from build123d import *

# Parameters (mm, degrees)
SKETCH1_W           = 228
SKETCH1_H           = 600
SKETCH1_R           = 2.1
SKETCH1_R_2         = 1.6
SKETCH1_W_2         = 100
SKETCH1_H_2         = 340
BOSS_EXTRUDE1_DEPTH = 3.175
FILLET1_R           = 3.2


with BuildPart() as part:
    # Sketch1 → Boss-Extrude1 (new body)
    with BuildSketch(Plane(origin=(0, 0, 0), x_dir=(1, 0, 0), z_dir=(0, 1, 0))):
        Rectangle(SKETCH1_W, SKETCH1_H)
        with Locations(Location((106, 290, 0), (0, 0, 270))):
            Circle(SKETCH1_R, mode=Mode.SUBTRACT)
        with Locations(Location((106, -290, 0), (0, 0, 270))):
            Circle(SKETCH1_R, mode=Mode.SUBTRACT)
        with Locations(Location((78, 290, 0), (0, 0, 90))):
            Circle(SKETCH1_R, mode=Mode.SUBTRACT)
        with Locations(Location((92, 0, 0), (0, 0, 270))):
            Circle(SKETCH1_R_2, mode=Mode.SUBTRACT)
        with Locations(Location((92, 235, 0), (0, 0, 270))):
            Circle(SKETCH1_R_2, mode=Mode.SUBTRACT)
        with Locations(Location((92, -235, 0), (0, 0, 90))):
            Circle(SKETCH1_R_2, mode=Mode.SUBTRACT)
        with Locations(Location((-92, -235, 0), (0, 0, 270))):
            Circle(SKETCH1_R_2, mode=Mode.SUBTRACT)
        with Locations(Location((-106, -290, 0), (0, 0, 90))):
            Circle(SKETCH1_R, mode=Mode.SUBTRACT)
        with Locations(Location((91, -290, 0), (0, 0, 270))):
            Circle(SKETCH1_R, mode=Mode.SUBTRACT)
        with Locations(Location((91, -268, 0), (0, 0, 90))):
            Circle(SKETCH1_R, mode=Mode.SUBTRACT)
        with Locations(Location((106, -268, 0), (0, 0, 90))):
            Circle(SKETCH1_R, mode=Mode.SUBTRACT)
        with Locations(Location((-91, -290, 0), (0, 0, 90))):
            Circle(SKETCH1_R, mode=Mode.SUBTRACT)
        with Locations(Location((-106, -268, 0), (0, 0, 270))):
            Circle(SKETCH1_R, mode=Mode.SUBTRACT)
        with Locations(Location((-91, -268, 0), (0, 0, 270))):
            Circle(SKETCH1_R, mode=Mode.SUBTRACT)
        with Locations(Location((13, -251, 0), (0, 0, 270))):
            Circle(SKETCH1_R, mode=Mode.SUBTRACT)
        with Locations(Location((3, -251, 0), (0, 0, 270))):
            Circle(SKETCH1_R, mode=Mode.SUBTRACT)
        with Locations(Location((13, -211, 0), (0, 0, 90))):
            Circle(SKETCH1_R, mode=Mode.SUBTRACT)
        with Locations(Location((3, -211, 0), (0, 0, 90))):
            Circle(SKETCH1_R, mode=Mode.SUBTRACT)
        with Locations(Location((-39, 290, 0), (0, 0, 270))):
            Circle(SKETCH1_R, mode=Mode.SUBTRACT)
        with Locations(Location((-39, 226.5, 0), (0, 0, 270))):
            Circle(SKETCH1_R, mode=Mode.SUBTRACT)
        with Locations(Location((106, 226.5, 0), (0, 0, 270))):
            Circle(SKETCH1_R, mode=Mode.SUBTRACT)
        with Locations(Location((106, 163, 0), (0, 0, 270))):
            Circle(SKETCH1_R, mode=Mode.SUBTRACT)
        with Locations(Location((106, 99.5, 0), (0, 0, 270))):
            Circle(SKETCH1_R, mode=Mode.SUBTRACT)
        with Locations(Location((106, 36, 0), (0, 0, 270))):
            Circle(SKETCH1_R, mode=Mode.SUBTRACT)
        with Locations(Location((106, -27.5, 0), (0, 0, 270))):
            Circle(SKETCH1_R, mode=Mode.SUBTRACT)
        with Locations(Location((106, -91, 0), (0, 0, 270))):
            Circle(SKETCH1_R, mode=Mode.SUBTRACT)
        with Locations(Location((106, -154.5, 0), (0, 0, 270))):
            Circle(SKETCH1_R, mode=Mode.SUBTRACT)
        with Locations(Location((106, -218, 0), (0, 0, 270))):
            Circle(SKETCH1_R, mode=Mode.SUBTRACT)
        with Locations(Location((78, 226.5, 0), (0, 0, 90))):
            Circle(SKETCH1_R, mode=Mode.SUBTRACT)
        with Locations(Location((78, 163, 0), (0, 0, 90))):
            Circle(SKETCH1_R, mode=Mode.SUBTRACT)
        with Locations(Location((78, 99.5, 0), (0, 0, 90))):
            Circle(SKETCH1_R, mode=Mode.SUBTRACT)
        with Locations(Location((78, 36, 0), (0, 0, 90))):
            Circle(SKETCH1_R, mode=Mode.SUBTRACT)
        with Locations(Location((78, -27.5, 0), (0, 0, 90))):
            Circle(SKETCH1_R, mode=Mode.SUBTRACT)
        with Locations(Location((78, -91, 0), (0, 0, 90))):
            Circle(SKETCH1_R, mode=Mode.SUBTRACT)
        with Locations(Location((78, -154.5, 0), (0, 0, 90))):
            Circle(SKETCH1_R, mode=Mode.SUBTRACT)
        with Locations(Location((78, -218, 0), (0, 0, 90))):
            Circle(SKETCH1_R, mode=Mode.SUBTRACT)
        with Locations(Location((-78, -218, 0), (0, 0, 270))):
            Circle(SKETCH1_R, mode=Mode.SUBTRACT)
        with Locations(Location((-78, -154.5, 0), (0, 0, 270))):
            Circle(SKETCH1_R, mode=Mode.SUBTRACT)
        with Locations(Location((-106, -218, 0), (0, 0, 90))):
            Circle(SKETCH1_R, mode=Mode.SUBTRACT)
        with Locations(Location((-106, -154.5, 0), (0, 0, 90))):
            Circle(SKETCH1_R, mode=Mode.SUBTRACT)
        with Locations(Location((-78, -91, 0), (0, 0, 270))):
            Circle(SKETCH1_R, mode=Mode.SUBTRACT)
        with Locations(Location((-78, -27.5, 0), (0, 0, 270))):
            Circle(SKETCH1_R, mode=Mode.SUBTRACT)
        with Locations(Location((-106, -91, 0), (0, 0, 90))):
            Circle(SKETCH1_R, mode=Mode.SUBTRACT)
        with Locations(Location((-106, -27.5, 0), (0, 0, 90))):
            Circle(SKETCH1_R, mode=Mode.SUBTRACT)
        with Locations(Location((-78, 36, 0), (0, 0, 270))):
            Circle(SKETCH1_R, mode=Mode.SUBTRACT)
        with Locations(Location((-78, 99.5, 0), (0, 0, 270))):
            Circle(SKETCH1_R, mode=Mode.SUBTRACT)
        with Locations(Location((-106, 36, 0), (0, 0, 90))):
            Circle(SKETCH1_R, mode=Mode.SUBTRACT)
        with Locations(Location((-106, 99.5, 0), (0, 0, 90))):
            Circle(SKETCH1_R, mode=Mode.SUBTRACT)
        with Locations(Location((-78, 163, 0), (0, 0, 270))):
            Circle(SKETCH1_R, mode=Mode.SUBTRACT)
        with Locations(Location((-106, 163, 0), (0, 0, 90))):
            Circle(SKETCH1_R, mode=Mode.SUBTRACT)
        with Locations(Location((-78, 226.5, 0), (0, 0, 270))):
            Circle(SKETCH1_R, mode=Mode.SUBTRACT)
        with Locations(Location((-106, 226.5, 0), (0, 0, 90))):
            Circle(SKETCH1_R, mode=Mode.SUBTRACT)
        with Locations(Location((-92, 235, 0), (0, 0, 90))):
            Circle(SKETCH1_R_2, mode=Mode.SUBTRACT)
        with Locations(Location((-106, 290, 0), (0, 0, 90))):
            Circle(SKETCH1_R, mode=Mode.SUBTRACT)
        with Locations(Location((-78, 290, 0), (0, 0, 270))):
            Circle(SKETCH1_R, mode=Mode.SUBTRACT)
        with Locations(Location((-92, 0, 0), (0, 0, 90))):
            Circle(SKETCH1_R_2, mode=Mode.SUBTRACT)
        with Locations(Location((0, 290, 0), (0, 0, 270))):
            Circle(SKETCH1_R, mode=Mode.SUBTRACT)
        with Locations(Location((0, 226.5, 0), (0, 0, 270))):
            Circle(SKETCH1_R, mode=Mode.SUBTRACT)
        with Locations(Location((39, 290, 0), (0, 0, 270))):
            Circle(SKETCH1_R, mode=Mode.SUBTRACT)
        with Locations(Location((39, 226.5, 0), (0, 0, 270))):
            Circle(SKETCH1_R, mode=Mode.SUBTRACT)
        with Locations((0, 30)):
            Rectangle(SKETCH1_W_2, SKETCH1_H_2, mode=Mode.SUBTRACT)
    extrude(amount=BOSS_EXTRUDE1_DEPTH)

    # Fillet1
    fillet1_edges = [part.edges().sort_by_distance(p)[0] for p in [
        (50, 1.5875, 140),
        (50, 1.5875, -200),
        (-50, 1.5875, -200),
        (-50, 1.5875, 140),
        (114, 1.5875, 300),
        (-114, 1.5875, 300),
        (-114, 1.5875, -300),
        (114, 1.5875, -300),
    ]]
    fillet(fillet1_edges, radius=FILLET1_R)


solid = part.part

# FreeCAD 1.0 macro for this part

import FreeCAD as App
import Part
import Sketcher

V = App.Vector


def edges_at(feature, points):
    """Names of the edges that pass closest to the given points."""
    edges = feature.Shape.Edges
    near = lambda p: min(range(len(edges)), key=lambda i: edges[i].distToShape(Part.Vertex(*p))[0])
    return sorted({f"Edge{near(p) + 1}" for p in points})

doc = App.newDocument("Part")
params = doc.addObject("Spreadsheet::Sheet", "Params")
for row, (alias, value) in enumerate([
    ("sketch1_diameter", "4.2 mm"),
    ("sketch1_diameter2", "3.2 mm"),
    ("sketch1_width", "228 mm"),
    ("sketch1_width2", "100 mm"),
    ("sketch1_height", "600 mm"),
    ("pad1_length", "3.175 mm"),
    ("fillet_radius", "3.2 mm"),
], start=1):
    params.set(f"A{row}", alias)
    params.set(f"B{row}", "=" + value)
    params.setAlias(f"B{row}", alias)

body = doc.addObject("PartDesign::Body", "Body")

# Sketch on XZ plane
sketch1 = doc.addObject("Sketcher::SketchObject", "Sketch")
body.addObject(sketch1)
sketch1.AttachmentSupport = (doc.XZ_Plane, [""])
sketch1.MapMode = "FlatFace"
sketch1.addGeometry(Part.LineSegment(V(-114, -300, 0), V(-114, 300, 0)), False)
sketch1.addGeometry(Part.LineSegment(V(-114, 300, 0), V(114, 300, 0)), False)
sketch1.addGeometry(Part.LineSegment(V(114, 300, 0), V(114, -300, 0)), False)
sketch1.addGeometry(Part.LineSegment(V(114, -300, 0), V(-114, -300, 0)), False)
sketch1.addGeometry(Part.Circle(V(-106, 290, 0), V(0, 0, 1), 2.1), False)
sketch1.addGeometry(Part.Circle(V(-106, 268, 0), V(0, 0, 1), 2.1), False)
sketch1.addGeometry(Part.Circle(V(-91, 290, 0), V(0, 0, 1), 2.1), False)
sketch1.addGeometry(Part.Circle(V(-91, 268, 0), V(0, 0, 1), 2.1), False)
sketch1.addGeometry(Part.Circle(V(-92, 235, 0), V(0, 0, 1), 1.6), False)
sketch1.addGeometry(Part.Circle(V(-106, 218, 0), V(0, 0, 1), 2.1), False)
sketch1.addGeometry(Part.Circle(V(-106, 154.5, 0), V(0, 0, 1), 2.1), False)
sketch1.addGeometry(Part.Circle(V(-78, 218, 0), V(0, 0, 1), 2.1), False)
sketch1.addGeometry(Part.Circle(V(-78, 154.5, 0), V(0, 0, 1), 2.1), False)
sketch1.addGeometry(Part.Circle(V(-106, 91, 0), V(0, 0, 1), 2.1), False)
sketch1.addGeometry(Part.Circle(V(-78, 91, 0), V(0, 0, 1), 2.1), False)
sketch1.addGeometry(Part.Circle(V(-106, 27.5, 0), V(0, 0, 1), 2.1), False)
sketch1.addGeometry(Part.Circle(V(-78, 27.5, 0), V(0, 0, 1), 2.1), False)
sketch1.addGeometry(Part.Circle(V(3, 251, 0), V(0, 0, 1), 2.1), False)
sketch1.addGeometry(Part.Circle(V(13, 251, 0), V(0, 0, 1), 2.1), False)
sketch1.addGeometry(Part.Circle(V(3, 211, 0), V(0, 0, 1), 2.1), False)
sketch1.addGeometry(Part.Circle(V(13, 211, 0), V(0, 0, 1), 2.1), False)
sketch1.addGeometry(Part.Circle(V(91, 290, 0), V(0, 0, 1), 2.1), False)
sketch1.addGeometry(Part.Circle(V(91, 268, 0), V(0, 0, 1), 2.1), False)
sketch1.addGeometry(Part.Circle(V(106, 290, 0), V(0, 0, 1), 2.1), False)
sketch1.addGeometry(Part.Circle(V(106, 268, 0), V(0, 0, 1), 2.1), False)
sketch1.addGeometry(Part.Circle(V(92, 235, 0), V(0, 0, 1), 1.6), False)
sketch1.addGeometry(Part.Circle(V(78, 218, 0), V(0, 0, 1), 2.1), False)
sketch1.addGeometry(Part.Circle(V(78, 154.5, 0), V(0, 0, 1), 2.1), False)
sketch1.addGeometry(Part.Circle(V(106, 218, 0), V(0, 0, 1), 2.1), False)
sketch1.addGeometry(Part.Circle(V(106, 154.5, 0), V(0, 0, 1), 2.1), False)
sketch1.addGeometry(Part.Circle(V(78, 91, 0), V(0, 0, 1), 2.1), False)
sketch1.addGeometry(Part.Circle(V(106, 91, 0), V(0, 0, 1), 2.1), False)
sketch1.addGeometry(Part.Circle(V(78, 27.5, 0), V(0, 0, 1), 2.1), False)
sketch1.addGeometry(Part.Circle(V(106, 27.5, 0), V(0, 0, 1), 2.1), False)
sketch1.addGeometry(Part.Circle(V(-106, -36, 0), V(0, 0, 1), 2.1), False)
sketch1.addGeometry(Part.Circle(V(-92, 0, 0), V(0, 0, 1), 1.6), False)
sketch1.addGeometry(Part.Circle(V(-78, -36, 0), V(0, 0, 1), 2.1), False)
sketch1.addGeometry(Part.Circle(V(-106, -99.5, 0), V(0, 0, 1), 2.1), False)
sketch1.addGeometry(Part.Circle(V(-78, -99.5, 0), V(0, 0, 1), 2.1), False)
sketch1.addGeometry(Part.Circle(V(-106, -163, 0), V(0, 0, 1), 2.1), False)
sketch1.addGeometry(Part.Circle(V(-78, -163, 0), V(0, 0, 1), 2.1), False)
sketch1.addGeometry(Part.Circle(V(-106, -226.5, 0), V(0, 0, 1), 2.1), False)
sketch1.addGeometry(Part.Circle(V(-92, -235, 0), V(0, 0, 1), 1.6), False)
sketch1.addGeometry(Part.Circle(V(-106, -290, 0), V(0, 0, 1), 2.1), False)
sketch1.addGeometry(Part.Circle(V(-78, -226.5, 0), V(0, 0, 1), 2.1), False)
sketch1.addGeometry(Part.Circle(V(-78, -290, 0), V(0, 0, 1), 2.1), False)
sketch1.addGeometry(Part.Circle(V(-39, -226.5, 0), V(0, 0, 1), 2.1), False)
sketch1.addGeometry(Part.Circle(V(-39, -290, 0), V(0, 0, 1), 2.1), False)
sketch1.addGeometry(Part.LineSegment(V(50, 140, 0), V(-50, 140, 0)), False)
sketch1.addGeometry(Part.LineSegment(V(-50, 140, 0), V(-50, -200, 0)), False)
sketch1.addGeometry(Part.LineSegment(V(-50, -200, 0), V(50, -200, 0)), False)
sketch1.addGeometry(Part.LineSegment(V(50, -200, 0), V(50, 140, 0)), False)
sketch1.addGeometry(Part.Circle(V(78, -36, 0), V(0, 0, 1), 2.1), False)
sketch1.addGeometry(Part.Circle(V(92, 0, 0), V(0, 0, 1), 1.6), False)
sketch1.addGeometry(Part.Circle(V(106, -36, 0), V(0, 0, 1), 2.1), False)
sketch1.addGeometry(Part.Circle(V(78, -99.5, 0), V(0, 0, 1), 2.1), False)
sketch1.addGeometry(Part.Circle(V(106, -99.5, 0), V(0, 0, 1), 2.1), False)
sketch1.addGeometry(Part.Circle(V(0, -226.5, 0), V(0, 0, 1), 2.1), False)
sketch1.addGeometry(Part.Circle(V(0, -290, 0), V(0, 0, 1), 2.1), False)
sketch1.addGeometry(Part.Circle(V(39, -226.5, 0), V(0, 0, 1), 2.1), False)
sketch1.addGeometry(Part.Circle(V(39, -290, 0), V(0, 0, 1), 2.1), False)
sketch1.addGeometry(Part.Circle(V(78, -163, 0), V(0, 0, 1), 2.1), False)
sketch1.addGeometry(Part.Circle(V(106, -163, 0), V(0, 0, 1), 2.1), False)
sketch1.addGeometry(Part.Circle(V(78, -226.5, 0), V(0, 0, 1), 2.1), False)
sketch1.addGeometry(Part.Circle(V(78, -290, 0), V(0, 0, 1), 2.1), False)
sketch1.addGeometry(Part.Circle(V(92, -235, 0), V(0, 0, 1), 1.6), False)
sketch1.addGeometry(Part.Circle(V(106, -226.5, 0), V(0, 0, 1), 2.1), False)
sketch1.addGeometry(Part.Circle(V(106, -290, 0), V(0, 0, 1), 2.1), False)
sketch1.addConstraint(Sketcher.Constraint("Coincident", 0, 2, 1, 1))
sketch1.addConstraint(Sketcher.Constraint("Coincident", 1, 2, 2, 1))
sketch1.addConstraint(Sketcher.Constraint("Coincident", 2, 2, 3, 1))
sketch1.addConstraint(Sketcher.Constraint("Coincident", 3, 2, 0, 1))
sketch1.addConstraint(Sketcher.Constraint("Coincident", 48, 2, 49, 1))
sketch1.addConstraint(Sketcher.Constraint("Coincident", 49, 2, 50, 1))
sketch1.addConstraint(Sketcher.Constraint("Coincident", 50, 2, 51, 1))
sketch1.addConstraint(Sketcher.Constraint("Coincident", 51, 2, 48, 1))
sketch1.addConstraint(Sketcher.Constraint("Vertical", 0))
sketch1.addConstraint(Sketcher.Constraint("Horizontal", 1))
sketch1.addConstraint(Sketcher.Constraint("Vertical", 2))
sketch1.addConstraint(Sketcher.Constraint("Horizontal", 3))
sketch1.addConstraint(Sketcher.Constraint("Horizontal", 48))
sketch1.addConstraint(Sketcher.Constraint("Vertical", 49))
sketch1.addConstraint(Sketcher.Constraint("Horizontal", 50))
sketch1.addConstraint(Sketcher.Constraint("Vertical", 51))
sketch1.addConstraint(Sketcher.Constraint("Equal", 4, 5))
sketch1.addConstraint(Sketcher.Constraint("Equal", 5, 6))
sketch1.addConstraint(Sketcher.Constraint("Equal", 6, 7))
sketch1.addConstraint(Sketcher.Constraint("Equal", 7, 9))
sketch1.addConstraint(Sketcher.Constraint("Equal", 9, 10))
sketch1.addConstraint(Sketcher.Constraint("Equal", 10, 11))
sketch1.addConstraint(Sketcher.Constraint("Equal", 11, 12))
sketch1.addConstraint(Sketcher.Constraint("Equal", 12, 13))
sketch1.addConstraint(Sketcher.Constraint("Equal", 13, 14))
sketch1.addConstraint(Sketcher.Constraint("Equal", 14, 15))
sketch1.addConstraint(Sketcher.Constraint("Equal", 15, 16))
sketch1.addConstraint(Sketcher.Constraint("Equal", 16, 17))
sketch1.addConstraint(Sketcher.Constraint("Equal", 17, 18))
sketch1.addConstraint(Sketcher.Constraint("Equal", 18, 19))
sketch1.addConstraint(Sketcher.Constraint("Equal", 19, 20))
sketch1.addConstraint(Sketcher.Constraint("Equal", 20, 21))
sketch1.addConstraint(Sketcher.Constraint("Equal", 21, 22))
sketch1.addConstraint(Sketcher.Constraint("Equal", 22, 23))
sketch1.addConstraint(Sketcher.Constraint("Equal", 23, 24))
sketch1.addConstraint(Sketcher.Constraint("Equal", 8, 25))
sketch1.addConstraint(Sketcher.Constraint("Equal", 24, 26))
sketch1.addConstraint(Sketcher.Constraint("Equal", 26, 27))
sketch1.addConstraint(Sketcher.Constraint("Equal", 27, 28))
sketch1.addConstraint(Sketcher.Constraint("Equal", 28, 29))
sketch1.addConstraint(Sketcher.Constraint("Equal", 29, 30))
sketch1.addConstraint(Sketcher.Constraint("Equal", 30, 31))
sketch1.addConstraint(Sketcher.Constraint("Equal", 31, 32))
sketch1.addConstraint(Sketcher.Constraint("Equal", 32, 33))
sketch1.addConstraint(Sketcher.Constraint("Equal", 33, 34))
sketch1.addConstraint(Sketcher.Constraint("Equal", 25, 35))
sketch1.addConstraint(Sketcher.Constraint("Equal", 34, 36))
sketch1.addConstraint(Sketcher.Constraint("Equal", 36, 37))
sketch1.addConstraint(Sketcher.Constraint("Equal", 37, 38))
sketch1.addConstraint(Sketcher.Constraint("Equal", 38, 39))
sketch1.addConstraint(Sketcher.Constraint("Equal", 39, 40))
sketch1.addConstraint(Sketcher.Constraint("Equal", 40, 41))
sketch1.addConstraint(Sketcher.Constraint("Equal", 35, 42))
sketch1.addConstraint(Sketcher.Constraint("Equal", 41, 43))
sketch1.addConstraint(Sketcher.Constraint("Equal", 43, 44))
sketch1.addConstraint(Sketcher.Constraint("Equal", 44, 45))
sketch1.addConstraint(Sketcher.Constraint("Equal", 45, 46))
sketch1.addConstraint(Sketcher.Constraint("Equal", 46, 47))
sketch1.addConstraint(Sketcher.Constraint("Equal", 47, 52))
sketch1.addConstraint(Sketcher.Constraint("Equal", 42, 53))
sketch1.addConstraint(Sketcher.Constraint("Equal", 52, 54))
sketch1.addConstraint(Sketcher.Constraint("Equal", 54, 55))
sketch1.addConstraint(Sketcher.Constraint("Equal", 55, 56))
sketch1.addConstraint(Sketcher.Constraint("Equal", 56, 57))
sketch1.addConstraint(Sketcher.Constraint("Equal", 57, 58))
sketch1.addConstraint(Sketcher.Constraint("Equal", 58, 59))
sketch1.addConstraint(Sketcher.Constraint("Equal", 59, 60))
sketch1.addConstraint(Sketcher.Constraint("Equal", 60, 61))
sketch1.addConstraint(Sketcher.Constraint("Equal", 61, 62))
sketch1.addConstraint(Sketcher.Constraint("Equal", 62, 63))
sketch1.addConstraint(Sketcher.Constraint("Equal", 63, 64))
sketch1.addConstraint(Sketcher.Constraint("Equal", 53, 65))
sketch1.addConstraint(Sketcher.Constraint("Equal", 64, 66))
sketch1.addConstraint(Sketcher.Constraint("Equal", 66, 67))
sketch1.addConstraint(Sketcher.Constraint("Symmetric", 25, 3, 42, 3, -1, 1))
sketch1.addConstraint(Sketcher.Constraint("Symmetric", 23, 3, 43, 3, -1, 1))
sketch1.addConstraint(Sketcher.Constraint("Symmetric", 35, 3, 53, 3, -1, 1))
sketch1.addConstraint(Sketcher.Constraint("Symmetric", 8, 3, 65, 3, -1, 1))
sketch1.addConstraint(Sketcher.Constraint("Symmetric", 4, 3, 67, 3, -1, 1))
sketch1.addConstraint(Sketcher.Constraint("Symmetric", 0, 2, 2, 2, -1, 1))
sketch1.addConstraint(Sketcher.Constraint("Symmetric", 6, 3, 21, 3, -2))
sketch1.addConstraint(Sketcher.Constraint("Symmetric", 7, 3, 22, 3, -2))
sketch1.addConstraint(Sketcher.Constraint("Symmetric", 4, 3, 23, 3, -2))
sketch1.addConstraint(Sketcher.Constraint("Symmetric", 5, 3, 24, 3, -2))
sketch1.addConstraint(Sketcher.Constraint("Symmetric", 8, 3, 25, 3, -2))
sketch1.addConstraint(Sketcher.Constraint("Symmetric", 11, 3, 26, 3, -2))
sketch1.addConstraint(Sketcher.Constraint("Symmetric", 12, 3, 27, 3, -2))
sketch1.addConstraint(Sketcher.Constraint("Symmetric", 9, 3, 28, 3, -2))
sketch1.addConstraint(Sketcher.Constraint("Symmetric", 10, 3, 29, 3, -2))
sketch1.addConstraint(Sketcher.Constraint("Symmetric", 14, 3, 30, 3, -2))
sketch1.addConstraint(Sketcher.Constraint("Symmetric", 13, 3, 31, 3, -2))
sketch1.addConstraint(Sketcher.Constraint("Symmetric", 16, 3, 32, 3, -2))
sketch1.addConstraint(Sketcher.Constraint("Symmetric", 15, 3, 33, 3, -2))
sketch1.addConstraint(Sketcher.Constraint("Symmetric", 36, 3, 52, 3, -2))
sketch1.addConstraint(Sketcher.Constraint("Symmetric", 34, 3, 54, 3, -2))
sketch1.addConstraint(Sketcher.Constraint("Symmetric", 38, 3, 55, 3, -2))
sketch1.addConstraint(Sketcher.Constraint("Symmetric", 37, 3, 56, 3, -2))
sketch1.addConstraint(Sketcher.Constraint("Symmetric", 46, 3, 59, 3, -2))
sketch1.addConstraint(Sketcher.Constraint("Symmetric", 47, 3, 60, 3, -2))
sketch1.addConstraint(Sketcher.Constraint("Symmetric", 40, 3, 61, 3, -2))
sketch1.addConstraint(Sketcher.Constraint("Symmetric", 39, 3, 62, 3, -2))
sketch1.addConstraint(Sketcher.Constraint("Symmetric", 44, 3, 63, 3, -2))
sketch1.addConstraint(Sketcher.Constraint("Symmetric", 45, 3, 64, 3, -2))
sketch1.addConstraint(Sketcher.Constraint("Symmetric", 41, 3, 66, 3, -2))
sketch1.addConstraint(Sketcher.Constraint("PointOnObject", 35, 3, -1))
sketch1.addConstraint(Sketcher.Constraint("PointOnObject", 57, 3, -2))
sketch1.addConstraint(Sketcher.Constraint("PointOnObject", 58, 3, -2))
sketch1.addConstraint(Sketcher.Constraint("Horizontal", 4, 3, 6, 3))
sketch1.addConstraint(Sketcher.Constraint("Horizontal", 5, 3, 7, 3))
sketch1.addConstraint(Sketcher.Constraint("Horizontal", 9, 3, 11, 3))
sketch1.addConstraint(Sketcher.Constraint("Horizontal", 10, 3, 12, 3))
sketch1.addConstraint(Sketcher.Constraint("Horizontal", 13, 3, 14, 3))
sketch1.addConstraint(Sketcher.Constraint("Horizontal", 15, 3, 16, 3))
sketch1.addConstraint(Sketcher.Constraint("Horizontal", 17, 3, 18, 3))
sketch1.addConstraint(Sketcher.Constraint("Horizontal", 19, 3, 20, 3))
sketch1.addConstraint(Sketcher.Constraint("Horizontal", 34, 3, 36, 3))
sketch1.addConstraint(Sketcher.Constraint("Horizontal", 37, 3, 38, 3))
sketch1.addConstraint(Sketcher.Constraint("Horizontal", 39, 3, 40, 3))
sketch1.addConstraint(Sketcher.Constraint("Horizontal", 41, 3, 44, 3))
sketch1.addConstraint(Sketcher.Constraint("Horizontal", 43, 3, 45, 3))
sketch1.addConstraint(Sketcher.Constraint("Horizontal", 44, 3, 46, 3))
sketch1.addConstraint(Sketcher.Constraint("Horizontal", 45, 3, 47, 3))
sketch1.addConstraint(Sketcher.Constraint("Horizontal", 46, 3, 57, 3))
sketch1.addConstraint(Sketcher.Constraint("Horizontal", 47, 3, 58, 3))
sketch1.addConstraint(Sketcher.Constraint("Vertical", 4, 3, 5, 3))
sketch1.addConstraint(Sketcher.Constraint("Vertical", 6, 3, 7, 3))
sketch1.addConstraint(Sketcher.Constraint("Vertical", 5, 3, 9, 3))
sketch1.addConstraint(Sketcher.Constraint("Vertical", 9, 3, 10, 3))
sketch1.addConstraint(Sketcher.Constraint("Vertical", 11, 3, 12, 3))
sketch1.addConstraint(Sketcher.Constraint("Vertical", 10, 3, 13, 3))
sketch1.addConstraint(Sketcher.Constraint("Vertical", 12, 3, 14, 3))
sketch1.addConstraint(Sketcher.Constraint("Vertical", 13, 3, 15, 3))
sketch1.addConstraint(Sketcher.Constraint("Vertical", 14, 3, 16, 3))
sketch1.addConstraint(Sketcher.Constraint("Vertical", 17, 3, 19, 3))
sketch1.addConstraint(Sketcher.Constraint("Vertical", 18, 3, 20, 3))
sketch1.addConstraint(Sketcher.Constraint("Vertical", 15, 3, 34, 3))
sketch1.addConstraint(Sketcher.Constraint("Vertical", 8, 3, 35, 3))
sketch1.addConstraint(Sketcher.Constraint("Vertical", 16, 3, 36, 3))
sketch1.addConstraint(Sketcher.Constraint("Vertical", 34, 3, 37, 3))
sketch1.addConstraint(Sketcher.Constraint("Vertical", 36, 3, 38, 3))
sketch1.addConstraint(Sketcher.Constraint("Vertical", 37, 3, 39, 3))
sketch1.addConstraint(Sketcher.Constraint("Vertical", 38, 3, 40, 3))
sketch1.addConstraint(Sketcher.Constraint("Vertical", 39, 3, 41, 3))
sketch1.addConstraint(Sketcher.Constraint("Vertical", 40, 3, 44, 3))
sketch1.addConstraint(Sketcher.Constraint("Vertical", 44, 3, 45, 3))
sketch1.addConstraint(Sketcher.Constraint("Vertical", 46, 3, 47, 3))
sketch1.addConstraint(Sketcher.Constraint("Diameter", 4, 4.2))
sketch1.addConstraint(Sketcher.Constraint("Diameter", 8, 3.2))
sketch1.addConstraint(Sketcher.Constraint("DistanceX", 1, 1, 1, 2, 228.0))
sketch1.addConstraint(Sketcher.Constraint("DistanceX", 48, 2, 48, 1, 100.0))
sketch1.addConstraint(Sketcher.Constraint("DistanceY", 0, 1, 0, 2, 600.0))
sketch1.addConstraint(Sketcher.Constraint("DistanceY", 49, 2, 49, 1, 340.0))
sketch1.addConstraint(Sketcher.Constraint("DistanceX", 4, 3, -1, 1, 106.0))
sketch1.addConstraint(Sketcher.Constraint("DistanceY", -1, 1, 4, 3, 290.0))
sketch1.addConstraint(Sketcher.Constraint("DistanceY", -1, 1, 5, 3, 268.0))
sketch1.addConstraint(Sketcher.Constraint("DistanceX", 6, 3, -1, 1, 91.0))
sketch1.addConstraint(Sketcher.Constraint("DistanceX", 8, 3, -1, 1, 92.0))
sketch1.addConstraint(Sketcher.Constraint("DistanceY", -1, 1, 8, 3, 235.0))
sketch1.addConstraint(Sketcher.Constraint("DistanceY", -1, 1, 9, 3, 218.0))
sketch1.addConstraint(Sketcher.Constraint("DistanceX", 11, 3, -1, 1, 78.0))
sketch1.addConstraint(Sketcher.Constraint("DistanceY", -1, 1, 13, 3, 91.0))
sketch1.addConstraint(Sketcher.Constraint("DistanceX", -1, 1, 17, 3, 3.0))
sketch1.addConstraint(Sketcher.Constraint("DistanceY", -1, 1, 17, 3, 251.0))
sketch1.addConstraint(Sketcher.Constraint("DistanceX", -1, 1, 18, 3, 13.0))
sketch1.addConstraint(Sketcher.Constraint("DistanceY", -1, 1, 19, 3, 211.0))
sketch1.addConstraint(Sketcher.Constraint("DistanceY", 34, 3, -1, 1, 36.0))
sketch1.addConstraint(Sketcher.Constraint("DistanceY", 39, 3, -1, 1, 163.0))
sketch1.addConstraint(Sketcher.Constraint("DistanceX", 46, 3, -1, 1, 39.0))
sketch1.addConstraint(Sketcher.Constraint("DistanceX", 48, 2, -1, 1, 50.0))
sketch1.addConstraint(Sketcher.Constraint("DistanceY", -1, 1, 48, 2, 140.0))
sketch1.addConstraint(Sketcher.Constraint("DistanceY", -1, 1, 10, 3, 154.5))
sketch1.addConstraint(Sketcher.Constraint("DistanceY", -1, 1, 15, 3, 27.5))
sketch1.addConstraint(Sketcher.Constraint("DistanceY", 37, 3, -1, 1, 99.5))
sketch1.addConstraint(Sketcher.Constraint("DistanceY", 41, 3, -1, 1, 226.5))
sketch1.setExpression("Constraints[146]", "Params.sketch1_diameter")
sketch1.setExpression("Constraints[147]", "Params.sketch1_diameter2")
sketch1.setExpression("Constraints[148]", "Params.sketch1_width")
sketch1.setExpression("Constraints[149]", "Params.sketch1_width2")
sketch1.setExpression("Constraints[150]", "Params.sketch1_height")
pad1 = doc.addObject("PartDesign::Pad", "Pad")
body.addObject(pad1)
pad1.Profile = sketch1
pad1.setExpression("Length", "Params.pad1_length")
pad1.Reversed = True
doc.recompute()

fillet = doc.addObject("PartDesign::Fillet", "Fillet")
body.addObject(fillet)
fillet.Base = (pad1, edges_at(pad1, [
    (50, 1.587, 140),
    (50, 1.587, -200),
    (-50, 1.587, -200),
    (-50, 1.587, 140),
    (114, 1.587, 300),
    (-114, 1.587, 300),
    (-114, 1.587, -300),
    (114, 1.587, -300),
]))
fillet.setExpression("Radius", "Params.fillet_radius")

doc.recompute()
